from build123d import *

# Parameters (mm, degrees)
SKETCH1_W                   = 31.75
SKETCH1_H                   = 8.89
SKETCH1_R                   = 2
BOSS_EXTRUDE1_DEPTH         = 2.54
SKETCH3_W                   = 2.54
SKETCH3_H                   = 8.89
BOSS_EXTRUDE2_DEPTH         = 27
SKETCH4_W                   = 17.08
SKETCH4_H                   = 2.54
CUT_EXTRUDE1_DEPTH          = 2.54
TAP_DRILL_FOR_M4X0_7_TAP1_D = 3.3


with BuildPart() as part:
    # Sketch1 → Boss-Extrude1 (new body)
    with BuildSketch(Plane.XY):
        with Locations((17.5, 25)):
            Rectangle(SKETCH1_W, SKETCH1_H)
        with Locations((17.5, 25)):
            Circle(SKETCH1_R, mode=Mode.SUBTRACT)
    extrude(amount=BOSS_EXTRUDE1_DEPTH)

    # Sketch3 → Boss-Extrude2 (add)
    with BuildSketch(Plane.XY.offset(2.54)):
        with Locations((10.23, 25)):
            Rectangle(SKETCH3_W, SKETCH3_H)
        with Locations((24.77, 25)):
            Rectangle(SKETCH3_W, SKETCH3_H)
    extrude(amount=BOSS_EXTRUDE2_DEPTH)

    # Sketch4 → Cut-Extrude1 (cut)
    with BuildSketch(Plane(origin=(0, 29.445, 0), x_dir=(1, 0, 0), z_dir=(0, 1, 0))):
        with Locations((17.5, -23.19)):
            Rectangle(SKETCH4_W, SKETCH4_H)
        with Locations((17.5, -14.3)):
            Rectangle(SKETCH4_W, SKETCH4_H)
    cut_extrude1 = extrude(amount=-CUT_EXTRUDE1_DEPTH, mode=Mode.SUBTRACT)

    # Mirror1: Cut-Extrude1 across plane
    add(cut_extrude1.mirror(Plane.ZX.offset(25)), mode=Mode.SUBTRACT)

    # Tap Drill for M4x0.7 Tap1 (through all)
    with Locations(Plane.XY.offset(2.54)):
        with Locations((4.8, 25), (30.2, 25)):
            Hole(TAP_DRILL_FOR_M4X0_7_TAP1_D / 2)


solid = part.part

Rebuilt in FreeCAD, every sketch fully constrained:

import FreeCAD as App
import Part
import Sketcher
from FreeCAD import Vector


def add_polygon(sketch, points):
    """Adds a closed chain of lines whose ends are joined by coincident constraints."""
    first, n = sketch.GeometryCount, len(points)
    for a, b in zip(points, points[1:] + points[:1]):
        sketch.addGeometry(Part.LineSegment(App.Vector(*a, 0), App.Vector(*b, 0)), False)
    for i in range(n):
        sketch.addConstraint(Sketcher.Constraint("Coincident", first + i, 2, first + (i + 1) % n, 1))

doc = App.newDocument("Part")
body = doc.addObject("PartDesign::Body", "Body")

# Sketch on XY plane
sketch1 = doc.addObject("Sketcher::SketchObject", "Sketch")
body.addObject(sketch1)
sketch1.AttachmentSupport = (doc.XY_Plane, [""])
sketch1.MapMode = "FlatFace"
add_polygon(sketch1, [(1.6, 29.4), (1.6, 20.6), (33.4, 20.6), (33.4, 29.4)])  # lines 0-3
sketch1.addGeometry(Part.Circle(Vector(17.5, 25, 0), Vector(0, 0, 1), 2), False)  # 4
sketch1.addConstraint([
    Sketcher.Constraint("Vertical", 0),
    Sketcher.Constraint("Horizontal", 1),
    Sketcher.Constraint("Vertical", 2),
    Sketcher.Constraint("Horizontal", 3),
    Sketcher.Constraint("Diameter", 4, 4.0),
    Sketcher.Constraint("DistanceY", -1, 1, 4, 3, 25.0),
    Sketcher.Constraint("DistanceX", 1, 1, 1, 2, 31.75),
    Sketcher.Constraint("DistanceY", 0, 2, 0, 1, 8.89),
    Sketcher.Constraint("DistanceX", -1, 1, 4, 3, 17.5),
    Sketcher.Constraint("DistanceX", -1, 1, 0, 2, 1.625),
    Sketcher.Constraint("DistanceY", -1, 1, 0, 2, 20.555),
])
pad1 = doc.addObject("PartDesign::Pad", "Pad")
body.addObject(pad1)
pad1.Profile = sketch1
pad1.Length = 2.54

# Sketch on XY plane
sketch2 = doc.addObject("Sketcher::SketchObject", "Sketch001")
body.addObject(sketch2)
sketch2.AttachmentSupport = (doc.XY_Plane, [""])
sketch2.MapMode = "FlatFace"
sketch2.AttachmentOffset = App.Placement(Vector(0, 0, 2.54), App.Rotation())
add_polygon(sketch2, [(9, 29.4), (9, 20.6), (11.5, 20.6), (11.5, 29.4)])  # lines 0-3
add_polygon(sketch2, [(23.5, 29.4), (23.5, 20.6), (26, 20.6), (26, 29.4)])  # lines 4-7
sketch2.addConstraint([
    Sketcher.Constraint("Vertical", 0),
    Sketcher.Constraint("Horizontal", 1),
    Sketcher.Constraint("Vertical", 2),
    Sketcher.Constraint("Horizontal", 3),
    Sketcher.Constraint("Vertical", 4),
    Sketcher.Constraint("Horizontal", 5),
    Sketcher.Constraint("Vertical", 6),
    Sketcher.Constraint("Horizontal", 7),
    Sketcher.Constraint("Horizontal", 1, 2, 4, 2),
    Sketcher.Constraint("Horizontal", 3, 2, 6, 2),
    Sketcher.Constraint("Equal", 3, 5),
    Sketcher.Constraint("DistanceX", 1, 2, 4, 2, 12.0),
    Sketcher.Constraint("DistanceX", 1, 1, 1, 2, 2.54),
    Sketcher.Constraint("DistanceY", 0, 2, 0, 1, 8.89),
    Sketcher.Constraint("DistanceX", -1, 1, 1, 2, 11.5),
    Sketcher.Constraint("DistanceY", -1, 1, 0, 2, 20.555),
])
pad2 = doc.addObject("PartDesign::Pad", "Pad001")
body.addObject(pad2)
pad2.Profile = sketch2
pad2.Length = 27

# Sketch on XZ plane
sketch3 = doc.addObject("Sketcher::SketchObject", "Sketch002")
body.addObject(sketch3)
sketch3.AttachmentSupport = (doc.XZ_Plane, [""])
sketch3.MapMode = "FlatFace"
sketch3.AttachmentOffset = App.Placement(Vector(0, 0, -29.445), App.Rotation())
add_polygon(sketch3, [(9, 21.9), (9, 24.5), (26, 24.5), (26, 21.9)])  # lines 0-3
add_polygon(sketch3, [(9, 13), (9, 15.6), (26, 15.6), (26, 13)])  # lines 4-7
sketch3.addConstraint([
    Sketcher.Constraint("Vertical", 0),
    Sketcher.Constraint("Horizontal", 1),
    Sketcher.Constraint("Vertical", 2),
    Sketcher.Constraint("Horizontal", 3),
    Sketcher.Constraint("Vertical", 4),
    Sketcher.Constraint("Horizontal", 5),
    Sketcher.Constraint("Vertical", 6),
    Sketcher.Constraint("Horizontal", 7),
    Sketcher.Constraint("Vertical", 3, 2, 4, 2),
    Sketcher.Constraint("Vertical", 2, 2, 5, 2),
    Sketcher.Constraint("Equal", 2, 4),
    Sketcher.Constraint("DistanceX", 1, 1, 1, 2, 17.08),
    Sketcher.Constraint("DistanceY", 0, 1, 0, 2, 2.54),
    Sketcher.Constraint("DistanceX", -1, 1, 0, 2, 8.96),
    Sketcher.Constraint("DistanceY", -1, 1, 0, 2, 24.46),
    Sketcher.Constraint("DistanceY", -1, 1, 4, 2, 15.57),
])
pocket1 = doc.addObject("PartDesign::Pocket", "Pocket")
body.addObject(pocket1)
pocket1.Profile = sketch3
pocket1.Length = 2.54
pocket1.Reversed = True
doc.recompute()

datumplane = doc.addObject("PartDesign::Plane", "DatumPlane")
body.addObject(datumplane)
datumplane.AttachmentSupport = (doc.XZ_Plane, [""])
datumplane.MapMode = "FlatFace"
datumplane.AttachmentOffset = App.Placement(Vector(0, 0, -25), App.Rotation())
mirrored = doc.addObject("PartDesign::Mirrored", "Mirrored")
body.addObject(mirrored)
mirrored.Originals = [pocket1]
mirrored.MirrorPlane = (datumplane, [""])
body.Tip = mirrored

# Sketch on XY plane
sketch4 = doc.addObject("Sketcher::SketchObject", "Sketch003")
body.addObject(sketch4)
sketch4.AttachmentSupport = (doc.XY_Plane, [""])
sketch4.MapMode = "FlatFace"
sketch4.AttachmentOffset = App.Placement(Vector(0, 0, 2.54), App.Rotation())
sketch4.addGeometry([
    Part.Circle(Vector(4.8, 25, 0), Vector(0, 0, 1), 1.6),
    Part.Circle(Vector(30.2, 25, 0), Vector(0, 0, 1), 1.6),
], False)
sketch4.addConstraint([
    Sketcher.Constraint("Equal", 0, 1),
    Sketcher.Constraint("Horizontal", 0, 3, 1, 3),
    Sketcher.Constraint("Diameter", 0, 3.3),
    Sketcher.Constraint("DistanceY", -1, 1, 0, 3, 25.0),
    Sketcher.Constraint("DistanceX", -1, 1, 0, 3, 4.8),
    Sketcher.Constraint("DistanceX", -1, 1, 1, 3, 30.2),
])
doc.recompute()
hole = doc.addObject("PartDesign::Hole", "Hole")
body.addObject(hole)
hole.Profile = sketch4
hole.ThreadType = "None"
hole.Diameter = 3.3
hole.DepthType = "ThroughAll"

doc.recompute()
